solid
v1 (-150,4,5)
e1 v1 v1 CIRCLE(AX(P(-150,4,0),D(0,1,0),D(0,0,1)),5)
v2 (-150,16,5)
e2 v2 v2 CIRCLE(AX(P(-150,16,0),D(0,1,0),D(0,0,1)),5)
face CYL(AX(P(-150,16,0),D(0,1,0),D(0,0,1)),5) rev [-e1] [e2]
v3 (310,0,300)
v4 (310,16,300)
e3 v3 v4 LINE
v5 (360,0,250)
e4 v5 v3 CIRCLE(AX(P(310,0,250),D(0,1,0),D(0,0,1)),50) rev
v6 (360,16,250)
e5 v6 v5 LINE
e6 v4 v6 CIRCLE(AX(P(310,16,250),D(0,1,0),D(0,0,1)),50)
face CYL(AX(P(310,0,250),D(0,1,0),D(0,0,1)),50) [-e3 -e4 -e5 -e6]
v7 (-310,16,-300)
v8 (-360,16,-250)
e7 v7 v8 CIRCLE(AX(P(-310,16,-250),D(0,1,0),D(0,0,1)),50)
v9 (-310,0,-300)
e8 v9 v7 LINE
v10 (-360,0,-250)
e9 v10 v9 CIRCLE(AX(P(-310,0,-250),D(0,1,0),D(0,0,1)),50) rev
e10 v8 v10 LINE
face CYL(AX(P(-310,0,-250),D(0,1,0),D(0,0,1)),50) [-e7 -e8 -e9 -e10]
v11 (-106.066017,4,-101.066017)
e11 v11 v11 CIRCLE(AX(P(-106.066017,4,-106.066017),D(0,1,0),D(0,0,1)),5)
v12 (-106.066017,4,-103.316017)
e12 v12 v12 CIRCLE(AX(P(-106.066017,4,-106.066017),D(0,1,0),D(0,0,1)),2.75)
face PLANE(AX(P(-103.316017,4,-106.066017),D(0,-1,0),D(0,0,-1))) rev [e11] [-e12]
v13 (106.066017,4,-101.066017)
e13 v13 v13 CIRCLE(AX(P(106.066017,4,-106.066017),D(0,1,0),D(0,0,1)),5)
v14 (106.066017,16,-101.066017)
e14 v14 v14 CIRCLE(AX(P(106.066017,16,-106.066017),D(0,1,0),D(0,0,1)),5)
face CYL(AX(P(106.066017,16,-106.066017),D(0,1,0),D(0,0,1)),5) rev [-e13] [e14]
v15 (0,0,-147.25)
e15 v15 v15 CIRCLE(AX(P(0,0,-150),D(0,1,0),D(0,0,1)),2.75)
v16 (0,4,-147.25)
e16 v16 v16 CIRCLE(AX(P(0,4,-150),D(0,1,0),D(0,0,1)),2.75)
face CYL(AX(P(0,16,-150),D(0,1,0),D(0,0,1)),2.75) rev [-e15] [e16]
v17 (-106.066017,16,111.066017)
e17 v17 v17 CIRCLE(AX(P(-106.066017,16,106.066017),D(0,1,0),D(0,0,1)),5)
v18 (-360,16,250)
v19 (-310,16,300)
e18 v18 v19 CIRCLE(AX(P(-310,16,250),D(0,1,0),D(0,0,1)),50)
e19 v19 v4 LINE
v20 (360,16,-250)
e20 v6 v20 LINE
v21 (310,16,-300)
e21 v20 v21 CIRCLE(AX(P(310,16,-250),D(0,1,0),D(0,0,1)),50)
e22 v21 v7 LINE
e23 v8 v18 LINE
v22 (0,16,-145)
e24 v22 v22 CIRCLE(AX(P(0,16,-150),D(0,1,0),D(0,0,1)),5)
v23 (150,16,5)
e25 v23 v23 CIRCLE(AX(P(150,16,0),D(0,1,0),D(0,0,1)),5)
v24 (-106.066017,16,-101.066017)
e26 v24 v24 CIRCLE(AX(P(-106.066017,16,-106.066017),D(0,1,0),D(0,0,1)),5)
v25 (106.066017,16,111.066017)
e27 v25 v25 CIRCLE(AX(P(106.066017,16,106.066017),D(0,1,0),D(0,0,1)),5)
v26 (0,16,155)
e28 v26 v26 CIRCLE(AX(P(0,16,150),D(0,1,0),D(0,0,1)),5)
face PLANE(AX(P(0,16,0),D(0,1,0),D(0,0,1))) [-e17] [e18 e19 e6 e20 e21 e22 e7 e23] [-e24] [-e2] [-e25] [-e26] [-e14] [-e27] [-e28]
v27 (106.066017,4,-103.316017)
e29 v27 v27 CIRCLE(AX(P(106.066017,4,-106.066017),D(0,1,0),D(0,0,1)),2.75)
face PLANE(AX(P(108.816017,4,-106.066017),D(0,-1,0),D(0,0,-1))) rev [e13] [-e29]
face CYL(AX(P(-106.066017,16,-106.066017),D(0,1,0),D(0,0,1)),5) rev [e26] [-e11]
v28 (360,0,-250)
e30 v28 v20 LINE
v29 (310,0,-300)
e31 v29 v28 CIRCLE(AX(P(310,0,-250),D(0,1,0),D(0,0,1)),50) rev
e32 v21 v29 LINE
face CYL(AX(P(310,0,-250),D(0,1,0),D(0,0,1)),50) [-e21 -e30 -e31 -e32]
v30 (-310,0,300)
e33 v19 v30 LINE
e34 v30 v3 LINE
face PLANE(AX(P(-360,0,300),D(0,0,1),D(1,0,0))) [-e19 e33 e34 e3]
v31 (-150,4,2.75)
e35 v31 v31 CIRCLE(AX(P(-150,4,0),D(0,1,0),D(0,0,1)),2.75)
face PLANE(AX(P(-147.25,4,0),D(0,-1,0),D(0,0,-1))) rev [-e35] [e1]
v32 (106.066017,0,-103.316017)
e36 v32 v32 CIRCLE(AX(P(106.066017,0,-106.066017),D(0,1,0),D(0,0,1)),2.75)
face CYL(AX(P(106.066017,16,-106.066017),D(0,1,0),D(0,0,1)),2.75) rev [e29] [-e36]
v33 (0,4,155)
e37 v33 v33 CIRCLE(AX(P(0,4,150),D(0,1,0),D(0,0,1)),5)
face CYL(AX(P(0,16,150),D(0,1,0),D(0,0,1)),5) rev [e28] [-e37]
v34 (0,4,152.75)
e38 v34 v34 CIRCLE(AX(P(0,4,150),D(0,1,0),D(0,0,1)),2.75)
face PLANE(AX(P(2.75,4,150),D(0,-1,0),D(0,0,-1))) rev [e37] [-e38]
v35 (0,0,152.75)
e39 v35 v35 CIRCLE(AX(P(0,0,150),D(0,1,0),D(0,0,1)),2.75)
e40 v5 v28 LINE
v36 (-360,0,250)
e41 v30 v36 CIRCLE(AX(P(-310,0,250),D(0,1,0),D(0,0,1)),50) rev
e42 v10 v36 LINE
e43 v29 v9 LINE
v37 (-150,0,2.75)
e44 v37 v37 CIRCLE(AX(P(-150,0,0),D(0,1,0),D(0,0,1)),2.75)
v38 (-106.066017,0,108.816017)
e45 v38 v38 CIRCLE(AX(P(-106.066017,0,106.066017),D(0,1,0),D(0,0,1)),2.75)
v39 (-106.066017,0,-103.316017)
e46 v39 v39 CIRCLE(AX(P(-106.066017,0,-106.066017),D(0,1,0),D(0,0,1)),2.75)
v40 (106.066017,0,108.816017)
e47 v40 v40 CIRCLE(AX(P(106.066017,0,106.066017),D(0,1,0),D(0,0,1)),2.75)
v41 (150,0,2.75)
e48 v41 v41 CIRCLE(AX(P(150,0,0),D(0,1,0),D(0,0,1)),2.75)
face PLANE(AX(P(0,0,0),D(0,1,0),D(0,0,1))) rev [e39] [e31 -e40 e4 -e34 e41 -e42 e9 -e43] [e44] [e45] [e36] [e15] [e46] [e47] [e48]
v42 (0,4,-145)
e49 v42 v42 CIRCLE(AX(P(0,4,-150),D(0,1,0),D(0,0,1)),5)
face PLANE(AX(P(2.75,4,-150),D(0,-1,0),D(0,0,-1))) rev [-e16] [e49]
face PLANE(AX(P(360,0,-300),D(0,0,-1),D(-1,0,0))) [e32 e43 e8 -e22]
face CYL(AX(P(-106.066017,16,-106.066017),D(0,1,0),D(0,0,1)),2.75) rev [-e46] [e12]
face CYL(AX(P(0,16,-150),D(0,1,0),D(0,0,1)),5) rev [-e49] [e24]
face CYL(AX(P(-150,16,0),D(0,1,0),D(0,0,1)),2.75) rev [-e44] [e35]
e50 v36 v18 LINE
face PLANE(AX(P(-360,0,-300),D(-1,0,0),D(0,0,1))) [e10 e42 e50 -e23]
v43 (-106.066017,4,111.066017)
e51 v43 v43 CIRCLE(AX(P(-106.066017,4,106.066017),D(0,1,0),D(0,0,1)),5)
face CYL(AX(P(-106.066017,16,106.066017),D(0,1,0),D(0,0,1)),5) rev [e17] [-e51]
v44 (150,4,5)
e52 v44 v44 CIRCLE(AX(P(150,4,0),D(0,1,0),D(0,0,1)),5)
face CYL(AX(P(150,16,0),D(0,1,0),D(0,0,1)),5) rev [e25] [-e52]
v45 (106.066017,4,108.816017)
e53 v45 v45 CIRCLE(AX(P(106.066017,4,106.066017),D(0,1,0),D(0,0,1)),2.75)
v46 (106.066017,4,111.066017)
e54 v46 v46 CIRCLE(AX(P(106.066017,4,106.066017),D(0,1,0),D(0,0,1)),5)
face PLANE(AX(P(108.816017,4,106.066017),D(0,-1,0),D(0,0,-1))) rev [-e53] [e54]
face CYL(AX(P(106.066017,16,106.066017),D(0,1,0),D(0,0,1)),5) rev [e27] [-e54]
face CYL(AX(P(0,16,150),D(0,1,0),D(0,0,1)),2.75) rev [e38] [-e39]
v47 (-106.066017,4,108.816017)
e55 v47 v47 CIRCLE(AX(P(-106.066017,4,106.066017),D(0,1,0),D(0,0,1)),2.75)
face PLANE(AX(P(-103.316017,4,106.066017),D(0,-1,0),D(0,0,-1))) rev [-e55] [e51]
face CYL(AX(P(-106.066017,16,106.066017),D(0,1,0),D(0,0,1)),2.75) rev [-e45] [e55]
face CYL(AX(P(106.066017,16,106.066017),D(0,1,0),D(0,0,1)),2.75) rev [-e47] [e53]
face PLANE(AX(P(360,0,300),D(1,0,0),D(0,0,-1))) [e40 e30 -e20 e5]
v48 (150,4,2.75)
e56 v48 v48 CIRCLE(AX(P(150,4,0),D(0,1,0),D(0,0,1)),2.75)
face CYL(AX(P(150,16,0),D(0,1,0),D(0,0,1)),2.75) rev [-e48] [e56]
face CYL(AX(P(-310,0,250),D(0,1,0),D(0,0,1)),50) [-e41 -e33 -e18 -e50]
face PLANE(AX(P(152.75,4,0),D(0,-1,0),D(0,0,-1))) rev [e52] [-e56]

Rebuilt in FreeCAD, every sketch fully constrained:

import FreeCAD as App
import Part
import Sketcher
from FreeCAD import Vector


def edges_at(feature, points):
    """Names of the edges that pass closest to the given points."""
    edges = feature.Shape.Edges
    near = lambda p: min(range(len(edges)), key=lambda i: edges[i].distToShape(Part.Vertex(*p))[0])
    return sorted({f"Edge{near(p) + 1}" for p in points})

doc = App.newDocument("Part")
body = doc.addObject("PartDesign::Body", "Body")

# Sketch on XZ plane
sketch1 = body.newObject("Sketcher::SketchObject", "Sketch")
sketch1.AttachmentSupport = (doc.getObject("XZ_Plane"), [""])
sketch1.MapMode = "FlatFace"
sketch1.AttachmentOffset = App.Placement(Vector(0, 0, -16), App.Rotation())
sketch1.addGeometry(Part.LineSegment(Vector(-360, -300, 0), Vector(-360, 300, 0)), False)
sketch1.addGeometry(Part.LineSegment(Vector(-360, 300, 0), Vector(360, 300, 0)), False)
sketch1.addGeometry(Part.LineSegment(Vector(360, 300, 0), Vector(360, -300, 0)), False)
sketch1.addGeometry(Part.LineSegment(Vector(360, -300, 0), Vector(-360, -300, 0)), False)
sketch1.addConstraint(Sketcher.Constraint("Coincident", 0, 2, 1, 1))
sketch1.addConstraint(Sketcher.Constraint("Coincident", 1, 2, 2, 1))
sketch1.addConstraint(Sketcher.Constraint("Coincident", 2, 2, 3, 1))
sketch1.addConstraint(Sketcher.Constraint("Coincident", 3, 2, 0, 1))
sketch1.addConstraint(Sketcher.Constraint("Vertical", 0))
sketch1.addConstraint(Sketcher.Constraint("Horizontal", 1))
sketch1.addConstraint(Sketcher.Constraint("Vertical", 2))
sketch1.addConstraint(Sketcher.Constraint("Horizontal", 3))
sketch1.addConstraint(Sketcher.Constraint("Symmetric", 0, 2, 2, 2, -1, 1))
sketch1.addConstraint(Sketcher.Constraint("DistanceX", 1, 1, 1, 2, 720.0))
sketch1.addConstraint(Sketcher.Constraint("DistanceY", 0, 1, 0, 2, 600.0))
pad1 = body.newObject("PartDesign::Pad", "Pad")
pad1.Profile = sketch1
pad1.Length = 16

# Sketch on XZ plane
sketch2 = body.newObject("Sketcher::SketchObject", "Sketch001")
sketch2.AttachmentSupport = (doc.getObject("XZ_Plane"), [""])
sketch2.MapMode = "FlatFace"
sketch2.AttachmentOffset = App.Placement(Vector(0, 0, -16), App.Rotation())
sketch2.addGeometry(Part.Circle(Vector(106.1, 106.1, 0), Vector(0, 0, 1), 2.8), False)
sketch2.addGeometry(Part.Circle(Vector(0, 150, 0), Vector(0, 0, 1), 2.8), False)
sketch2.addGeometry(Part.Circle(Vector(-106.1, 106.1, 0), Vector(0, 0, 1), 2.8), False)
sketch2.addGeometry(Part.Circle(Vector(-150, 0, 0), Vector(0, 0, 1), 2.8), False)
sketch2.addGeometry(Part.Circle(Vector(-106.1, -106.1, 0), Vector(0, 0, 1), 2.8), False)
sketch2.addGeometry(Part.Circle(Vector(0, -150, 0), Vector(0, 0, 1), 2.8), False)
sketch2.addGeometry(Part.Circle(Vector(106.1, -106.1, 0), Vector(0, 0, 1), 2.8), False)
sketch2.addGeometry(Part.Circle(Vector(150, 0, 0), Vector(0, 0, 1), 2.8), False)
sketch2.addConstraint(Sketcher.Constraint("Equal", 0, 1))
sketch2.addConstraint(Sketcher.Constraint("Equal", 1, 2))
sketch2.addConstraint(Sketcher.Constraint("Equal", 2, 3))
sketch2.addConstraint(Sketcher.Constraint("Equal", 3, 4))
sketch2.addConstraint(Sketcher.Constraint("Equal", 4, 5))
sketch2.addConstraint(Sketcher.Constraint("Equal", 5, 6))
sketch2.addConstraint(Sketcher.Constraint("Equal", 6, 7))
sketch2.addConstraint(Sketcher.Constraint("Symmetric", 0, 3, 4, 3, -1, 1))
sketch2.addConstraint(Sketcher.Constraint("Symmetric", 1, 3, 5, 3, -1, 1))
sketch2.addConstraint(Sketcher.Constraint("Symmetric", 2, 3, 6, 3, -1, 1))
sketch2.addConstraint(Sketcher.Constraint("Symmetric", 3, 3, 7, 3, -1, 1))
sketch2.addConstraint(Sketcher.Constraint("Symmetric", 0, 3, 2, 3, -2))
sketch2.addConstraint(Sketcher.Constraint("PointOnObject", 1, 3, -2))
sketch2.addConstraint(Sketcher.Constraint("PointOnObject", 3, 3, -1))
sketch2.addConstraint(Sketcher.Constraint("Diameter", 0, 5.5))
sketch2.addConstraint(Sketcher.Constraint("DistanceY", -1, 1, 1, 3, 150.0))
sketch2.addConstraint(Sketcher.Constraint("DistanceX", 3, 3, -1, 1, 150.0))
sketch2.addConstraint(Sketcher.Constraint("DistanceX", -1, 1, 0, 3, 106.066017))
sketch2.addConstraint(Sketcher.Constraint("DistanceY", -1, 1, 0, 3, 106.066017))
doc.recompute()
hole = body.newObject("PartDesign::Hole", "Hole")
hole.Profile = sketch2
hole.ThreadType = "None"
hole.Diameter = 5.5
hole.DepthType = "ThroughAll"
hole.HoleCutType = "Counterbore"
hole.HoleCutDiameter = 10
hole.HoleCutDepth = 12
hole.Reversed = True
doc.recompute()

fillet = body.newObject("PartDesign::Fillet", "Fillet")
fillet.Base = (hole, edges_at(hole, [
    (-360, 8, -300),
    (360, 8, -300),
    (360, 8, 300),
    (-360, 8, 300),
]))
fillet.Radius = 50

doc.recompute()
